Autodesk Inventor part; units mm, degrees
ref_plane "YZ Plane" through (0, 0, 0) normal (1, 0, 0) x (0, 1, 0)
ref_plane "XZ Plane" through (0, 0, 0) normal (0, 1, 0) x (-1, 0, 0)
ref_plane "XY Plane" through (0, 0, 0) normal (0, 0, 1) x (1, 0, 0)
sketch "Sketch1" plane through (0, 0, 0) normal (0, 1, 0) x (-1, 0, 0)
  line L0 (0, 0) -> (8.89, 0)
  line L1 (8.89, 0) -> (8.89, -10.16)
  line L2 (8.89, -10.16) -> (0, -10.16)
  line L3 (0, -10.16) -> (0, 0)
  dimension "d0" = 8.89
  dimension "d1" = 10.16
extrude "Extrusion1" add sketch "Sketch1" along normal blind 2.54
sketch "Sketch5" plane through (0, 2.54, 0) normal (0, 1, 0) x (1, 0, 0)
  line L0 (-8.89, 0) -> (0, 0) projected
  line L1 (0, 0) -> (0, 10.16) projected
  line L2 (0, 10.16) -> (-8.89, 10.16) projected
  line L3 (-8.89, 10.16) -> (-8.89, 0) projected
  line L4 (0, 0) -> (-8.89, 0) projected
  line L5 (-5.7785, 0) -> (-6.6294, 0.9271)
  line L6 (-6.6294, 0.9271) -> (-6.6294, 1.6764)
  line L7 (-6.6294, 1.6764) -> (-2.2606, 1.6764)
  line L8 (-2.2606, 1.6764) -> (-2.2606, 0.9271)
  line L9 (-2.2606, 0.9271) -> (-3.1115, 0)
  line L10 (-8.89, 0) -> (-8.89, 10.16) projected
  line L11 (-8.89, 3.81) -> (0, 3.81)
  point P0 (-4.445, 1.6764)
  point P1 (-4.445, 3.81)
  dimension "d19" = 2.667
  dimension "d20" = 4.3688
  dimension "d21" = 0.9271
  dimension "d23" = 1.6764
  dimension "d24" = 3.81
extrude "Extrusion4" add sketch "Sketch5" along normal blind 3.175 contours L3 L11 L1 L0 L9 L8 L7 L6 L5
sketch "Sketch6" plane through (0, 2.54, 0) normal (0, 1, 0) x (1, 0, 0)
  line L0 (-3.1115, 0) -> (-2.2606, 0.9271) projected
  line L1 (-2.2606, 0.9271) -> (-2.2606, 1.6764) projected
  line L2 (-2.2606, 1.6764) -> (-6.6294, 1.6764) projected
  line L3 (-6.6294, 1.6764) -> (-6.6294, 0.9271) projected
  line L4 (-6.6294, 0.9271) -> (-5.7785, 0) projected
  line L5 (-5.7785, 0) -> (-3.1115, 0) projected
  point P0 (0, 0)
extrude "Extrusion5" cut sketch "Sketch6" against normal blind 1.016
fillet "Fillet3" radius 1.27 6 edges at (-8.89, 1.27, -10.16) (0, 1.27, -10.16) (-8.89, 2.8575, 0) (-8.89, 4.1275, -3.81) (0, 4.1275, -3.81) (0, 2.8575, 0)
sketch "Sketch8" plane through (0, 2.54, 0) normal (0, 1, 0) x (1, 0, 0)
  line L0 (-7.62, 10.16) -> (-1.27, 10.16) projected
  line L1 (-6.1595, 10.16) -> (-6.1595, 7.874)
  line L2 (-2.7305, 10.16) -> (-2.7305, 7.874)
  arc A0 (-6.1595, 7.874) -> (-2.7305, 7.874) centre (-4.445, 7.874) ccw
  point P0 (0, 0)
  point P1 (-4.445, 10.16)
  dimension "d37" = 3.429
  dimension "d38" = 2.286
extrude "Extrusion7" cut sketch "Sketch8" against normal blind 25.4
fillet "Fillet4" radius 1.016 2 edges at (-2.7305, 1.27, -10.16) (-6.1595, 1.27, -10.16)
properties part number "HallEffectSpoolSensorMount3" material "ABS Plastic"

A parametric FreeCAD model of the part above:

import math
import FreeCAD as App
import Part
import Sketcher

V = App.Vector
Q = App.Units.Quantity


def edges_at(feature, points):
    """Names of the edges that pass closest to the given points."""
    edges = feature.Shape.Edges
    near = lambda p: min(range(len(edges)), key=lambda i: edges[i].distToShape(Part.Vertex(*p))[0])
    return sorted({f"Edge{near(p) + 1}" for p in points})

doc = App.newDocument("Part")
body = doc.addObject("PartDesign::Body", "Body")

# Sketch on XZ plane
sketch1 = body.newObject("Sketcher::SketchObject", "Sketch")
sketch1.AttachmentSupport = (doc.getObject("XZ_Plane"), [""])
sketch1.MapMode = "FlatFace"
sketch1.addGeometry([
    Part.LineSegment(V(-9, 0, 0), V(0, 0, 0)),
    Part.LineSegment(V(0, 0, 0), V(0, -10, 0)),
    Part.LineSegment(V(0, -10, 0), V(-9, -10, 0)),
    Part.LineSegment(V(-9, -10, 0), V(-9, 0, 0)),
], False)
sketch1.addConstraint([
    Sketcher.Constraint("Coincident", 0, 2, 1, 1),
    Sketcher.Constraint("Coincident", 1, 2, 2, 1),
    Sketcher.Constraint("Coincident", 2, 2, 3, 1),
    Sketcher.Constraint("Coincident", 3, 2, 0, 1),
    Sketcher.Constraint("Horizontal", 0),
    Sketcher.Constraint("Vertical", 1),
    Sketcher.Constraint("Horizontal", 2),
    Sketcher.Constraint("Vertical", 3),
    Sketcher.Constraint("Coincident", 0, 2, -1, 1),
    Sketcher.Constraint("DistanceY", 1, 2, 1, 1, Q("0.4 in")),
    Sketcher.Constraint("DistanceX", 0, 1, 0, 2, Q("0.35 in")),
])
pad1 = body.newObject("PartDesign::Pad", "Pad")
pad1.Profile = sketch1
pad1.Length = Q("0.1 in")
pad1.Reversed = True

# Sketch on XZ plane
sketch2 = body.newObject("Sketcher::SketchObject", "Sketch001")
sketch2.AttachmentSupport = (doc.getObject("XZ_Plane"), [""])
sketch2.MapMode = "FlatFace"
sketch2.AttachmentOffset = App.Placement(V(0, 0, -0.1 * 25.4), App.Rotation())
sketch2.addGeometry([
    Part.LineSegment(V(-8.9, -3.8, 0), V(-8.9, 0, 0)),  # 0
    Part.LineSegment(V(-8.9, 0, 0), V(-5.8, 0, 0)),  # 1
    Part.LineSegment(V(-5.8, 0, 0), V(-6.6, -0.9, 0)),  # 2
    Part.LineSegment(V(-6.6, -0.9, 0), V(-6.6, -1.7, 0)),  # 3
    Part.LineSegment(V(-6.6, -1.7, 0), V(-2.3, -1.7, 0)),  # 4
    Part.LineSegment(V(-2.3, -1.7, 0), V(-2.3, -0.9, 0)),  # 5
    Part.LineSegment(V(-2.3, -0.9, 0), V(-3.1, 0, 0)),  # 6
    Part.LineSegment(V(-3.1, 0, 0), V(0, 0, 0)),  # 7
    Part.LineSegment(V(0, 0, 0), V(0, -3.8, 0)),  # 8
    Part.LineSegment(V(0, -3.8, 0), V(-8.9, -3.8, 0)),  # 9
], False)
sketch2.addConstraint([
    Sketcher.Constraint("Coincident", 0, 2, 1, 1),
    Sketcher.Constraint("Coincident", 1, 2, 2, 1),
    Sketcher.Constraint("Coincident", 2, 2, 3, 1),
    Sketcher.Constraint("Coincident", 3, 2, 4, 1),
    Sketcher.Constraint("Coincident", 4, 2, 5, 1),
    Sketcher.Constraint("Coincident", 5, 2, 6, 1),
    Sketcher.Constraint("Coincident", 6, 2, 7, 1),
    Sketcher.Constraint("Coincident", 7, 2, 8, 1),
    Sketcher.Constraint("Coincident", 8, 2, 9, 1),
    Sketcher.Constraint("Coincident", 9, 2, 0, 1),
    Sketcher.Constraint("Vertical", 0),
    Sketcher.Constraint("Horizontal", 1),
    Sketcher.Constraint("Vertical", 3),
    Sketcher.Constraint("Horizontal", 4),
    Sketcher.Constraint("Vertical", 5),
    Sketcher.Constraint("Horizontal", 7),
    Sketcher.Constraint("Vertical", 8),
    Sketcher.Constraint("Horizontal", 9),
    Sketcher.Constraint("Coincident", 7, 2, -1, 1),
    Sketcher.Constraint("PointOnObject", 0, 2, -1),
    Sketcher.Constraint("Horizontal", 2, 2, 5, 2),
    Sketcher.Constraint("Equal", 1, 7),
    Sketcher.Constraint("Equal", 2, 6),
    Sketcher.Constraint("DistanceY", 0, 1, 0, 2, Q("0.15 in")),
    Sketcher.Constraint("DistanceX", 4, 1, 4, 2, Q("0.172 in")),
    Sketcher.Constraint("DistanceY", 3, 2, -1, 1, Q("0.066 in")),
    Sketcher.Constraint("DistanceX", 1, 2, 6, 2, Q("0.105 in")),
    Sketcher.Constraint("DistanceX", 9, 2, 9, 1, Q("0.35 in")),
    Sketcher.Constraint("DistanceY", 2, 2, -1, 1, Q("0.0365 in")),
])
pad2 = body.newObject("PartDesign::Pad", "Pad001")
pad2.Profile = sketch2
pad2.Length = Q("0.125 in")
pad2.Reversed = True

# Sketch on XZ plane
sketch3 = body.newObject("Sketcher::SketchObject", "Sketch002")
sketch3.AttachmentSupport = (doc.getObject("XZ_Plane"), [""])
sketch3.MapMode = "FlatFace"
sketch3.AttachmentOffset = App.Placement(V(0, 0, -0.1 * 25.4), App.Rotation())
sketch3.addGeometry([
    Part.LineSegment(V(-5.8, 0, 0), V(-3.1, 0, 0)),  # 0
    Part.LineSegment(V(-3.1, 0, 0), V(-2.3, -0.9, 0)),  # 1
    Part.LineSegment(V(-2.3, -0.9, 0), V(-2.3, -1.7, 0)),  # 2
    Part.LineSegment(V(-2.3, -1.7, 0), V(-6.6, -1.7, 0)),  # 3
    Part.LineSegment(V(-6.6, -1.7, 0), V(-6.6, -0.9, 0)),  # 4
    Part.LineSegment(V(-6.6, -0.9, 0), V(-5.8, 0, 0)),  # 5
], False)
sketch3.addConstraint([
    Sketcher.Constraint("Coincident", 0, 2, 1, 1),
    Sketcher.Constraint("Coincident", 1, 2, 2, 1),
    Sketcher.Constraint("Coincident", 2, 2, 3, 1),
    Sketcher.Constraint("Coincident", 3, 2, 4, 1),
    Sketcher.Constraint("Coincident", 4, 2, 5, 1),
    Sketcher.Constraint("Coincident", 5, 2, 0, 1),
    Sketcher.Constraint("Horizontal", 0),
    Sketcher.Constraint("Vertical", 2),
    Sketcher.Constraint("Horizontal", 3),
    Sketcher.Constraint("Vertical", 4),
    Sketcher.Constraint("PointOnObject", 0, 2, -1),
    Sketcher.Constraint("Horizontal", 1, 2, 4, 2),
    Sketcher.Constraint("Equal", 1, 5),
    Sketcher.Constraint("DistanceX", 0, 1, 0, 2, Q("0.105 in")),
    Sketcher.Constraint("DistanceX", 3, 2, 3, 1, Q("0.172 in")),
    Sketcher.Constraint("DistanceY", 2, 2, 2, 1, Q("0.0295 in")),
    Sketcher.Constraint("DistanceX", 1, 2, -1, 1, Q("0.089 in")),
    Sketcher.Constraint("DistanceY", 2, 2, -1, 1, Q("0.066 in")),
])
pocket1 = body.newObject("PartDesign::Pocket", "Pocket")
pocket1.Profile = sketch3
pocket1.Length = Q("0.04 in")
pocket1.Reversed = True
doc.recompute()

fillet = body.newObject("PartDesign::Fillet", "Fillet")
fillet.Base = (pocket1, edges_at(pocket1, [
    (-8.89, 1.27, -10.16),
    (0, 1.27, -10.16),
    (-8.89, 2.857, 0),
    (-8.89, 4.128, -3.81),
    (0, 4.128, -3.81),
    (0, 2.857, 0),
]))
fillet.Radius = Q("0.05 in")

# Sketch on XZ plane
sketch4 = body.newObject("Sketcher::SketchObject", "Sketch003")
sketch4.AttachmentSupport = (doc.getObject("XZ_Plane"), [""])
sketch4.MapMode = "FlatFace"
sketch4.AttachmentOffset = App.Placement(V(0, 0, -0.1 * 25.4), App.Rotation())
sketch4.addGeometry([
    Part.LineSegment(V(-2.7, -10.2, 0), V(-6.2, -10.2, 0)),
    Part.LineSegment(V(-6.2, -10.2, 0), V(-6.2, -7.9, 0)),
    Part.ArcOfCircle(Part.Circle(V(-4.4, -7.9, 0), V(0, 0, 1), 1.7), math.radians(0), math.radians(180)),
    Part.LineSegment(V(-2.7, -7.9, 0), V(-2.7, -10.2, 0)),
], False)
sketch4.addConstraint([
    Sketcher.Constraint("Coincident", 0, 2, 1, 1),
    Sketcher.Constraint("Tangent", 1, 2, 2, 2),
    Sketcher.Constraint("Tangent", 2, 1, 3, 1),
    Sketcher.Constraint("Coincident", 3, 2, 0, 1),
    Sketcher.Constraint("Horizontal", 0),
    Sketcher.Constraint("Vertical", 1),
    Sketcher.Constraint("Vertical", 3),
    Sketcher.Constraint("DistanceY", 1, 1, 1, 2, Q("0.09 in")),
    Sketcher.Constraint("Radius", 2, Q("0.0675 in")),
    Sketcher.Constraint("DistanceY", 0, 2, -1, 1, Q("0.4 in")),
    Sketcher.Constraint("DistanceX", 2, 3, -1, 1, Q("0.175 in")),
])
pocket2 = body.newObject("PartDesign::Pocket", "Pocket001")
pocket2.Profile = sketch4
pocket2.Length = Q("1 in")
pocket2.Reversed = True
doc.recompute()

fillet2 = body.newObject("PartDesign::Fillet", "Fillet001")
fillet2.Base = (pocket2, edges_at(pocket2, [(-2.731, 1.27, -10.16), (-6.16, 1.27, -10.16)]))
fillet2.Radius = Q("0.04 in")

doc.recompute()
